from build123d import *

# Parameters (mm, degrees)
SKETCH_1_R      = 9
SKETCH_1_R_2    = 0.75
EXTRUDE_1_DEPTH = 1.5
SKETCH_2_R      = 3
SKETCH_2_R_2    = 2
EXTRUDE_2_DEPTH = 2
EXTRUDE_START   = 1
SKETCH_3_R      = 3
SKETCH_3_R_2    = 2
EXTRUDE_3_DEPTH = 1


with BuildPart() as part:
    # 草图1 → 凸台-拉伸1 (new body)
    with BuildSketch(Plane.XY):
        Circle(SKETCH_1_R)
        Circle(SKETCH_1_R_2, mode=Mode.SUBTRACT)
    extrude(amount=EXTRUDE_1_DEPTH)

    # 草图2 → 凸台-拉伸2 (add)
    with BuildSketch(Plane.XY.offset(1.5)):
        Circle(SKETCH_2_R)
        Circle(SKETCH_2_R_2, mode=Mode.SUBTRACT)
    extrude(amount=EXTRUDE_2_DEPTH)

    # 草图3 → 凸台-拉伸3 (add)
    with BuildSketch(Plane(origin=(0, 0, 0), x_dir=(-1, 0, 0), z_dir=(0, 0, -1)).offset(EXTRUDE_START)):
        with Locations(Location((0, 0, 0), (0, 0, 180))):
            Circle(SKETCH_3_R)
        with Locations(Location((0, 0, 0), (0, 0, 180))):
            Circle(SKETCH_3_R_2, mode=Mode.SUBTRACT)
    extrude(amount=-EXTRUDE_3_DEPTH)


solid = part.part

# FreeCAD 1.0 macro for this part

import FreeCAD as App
import Part
import Sketcher
from FreeCAD import Vector
Q = App.Units.Quantity

doc = App.newDocument("Part")
body = doc.addObject("PartDesign::Body", "Body")

# Sketch on XY plane
sketch1 = doc.addObject("Sketcher::SketchObject", "Sketch")
body.addObject(sketch1)
sketch1.AttachmentSupport = (doc.XY_Plane, [""])
sketch1.MapMode = "FlatFace"
sketch1.addGeometry([
    Part.Circle(Vector(0, 0, 0), Vector(0, 0, 1), 9),
    Part.Circle(Vector(0, 0, 0), Vector(0, 0, 1), 0.8),
], False)
sketch1.addConstraint([
    Sketcher.Constraint("Coincident", 0, 3, -1, 1),
    Sketcher.Constraint("Coincident", 1, 3, -1, 1),
    Sketcher.Constraint("Diameter", 0, Q("18 mm")),
    Sketcher.Constraint("Diameter", 1, Q("1.5 mm")),
])
pad1 = doc.addObject("PartDesign::Pad", "Pad")
body.addObject(pad1)
pad1.Profile = sketch1
pad1.Length = 1.5

# Sketch on XY plane
sketch2 = doc.addObject("Sketcher::SketchObject", "Sketch001")
body.addObject(sketch2)
sketch2.AttachmentSupport = (doc.XY_Plane, [""])
sketch2.MapMode = "FlatFace"
sketch2.AttachmentOffset = App.Placement(Vector(0, 0, 1.5), App.Rotation())
sketch2.addGeometry([
    Part.Circle(Vector(0, 0, 0), Vector(0, 0, 1), 3),
    Part.Circle(Vector(0, 0, 0), Vector(0, 0, 1), 2),
], False)
sketch2.addConstraint([
    Sketcher.Constraint("Coincident", 0, 3, -1, 1),
    Sketcher.Constraint("Coincident", 1, 3, -1, 1),
    Sketcher.Constraint("Diameter", 0, Q("6 mm")),
    Sketcher.Constraint("Diameter", 1, Q("4 mm")),
])
pad2 = doc.addObject("PartDesign::Pad", "Pad001")
body.addObject(pad2)
pad2.Profile = sketch2
pad2.Length = 2

# Sketch on XY plane
sketch3 = doc.addObject("Sketcher::SketchObject", "Sketch002")
body.addObject(sketch3)
sketch3.AttachmentSupport = (doc.XY_Plane, [""])
sketch3.MapMode = "FlatFace"
sketch3.AttachmentOffset = App.Placement(Vector(0, 0, -1), App.Rotation())
sketch3.addGeometry([
    Part.Circle(Vector(0, 0, 0), Vector(0, 0, 1), 3),
    Part.Circle(Vector(0, 0, 0), Vector(0, 0, 1), 2),
], False)
sketch3.addConstraint([
    Sketcher.Constraint("Coincident", 0, 3, -1, 1),
    Sketcher.Constraint("Coincident", 1, 3, -1, 1),
    Sketcher.Constraint("Diameter", 0, Q("6 mm")),
    Sketcher.Constraint("Diameter", 1, Q("4 mm")),
])
pad3 = doc.addObject("PartDesign::Pad", "Pad002")
body.addObject(pad3)
pad3.Profile = sketch3
pad3.Length = 1

doc.recompute()
